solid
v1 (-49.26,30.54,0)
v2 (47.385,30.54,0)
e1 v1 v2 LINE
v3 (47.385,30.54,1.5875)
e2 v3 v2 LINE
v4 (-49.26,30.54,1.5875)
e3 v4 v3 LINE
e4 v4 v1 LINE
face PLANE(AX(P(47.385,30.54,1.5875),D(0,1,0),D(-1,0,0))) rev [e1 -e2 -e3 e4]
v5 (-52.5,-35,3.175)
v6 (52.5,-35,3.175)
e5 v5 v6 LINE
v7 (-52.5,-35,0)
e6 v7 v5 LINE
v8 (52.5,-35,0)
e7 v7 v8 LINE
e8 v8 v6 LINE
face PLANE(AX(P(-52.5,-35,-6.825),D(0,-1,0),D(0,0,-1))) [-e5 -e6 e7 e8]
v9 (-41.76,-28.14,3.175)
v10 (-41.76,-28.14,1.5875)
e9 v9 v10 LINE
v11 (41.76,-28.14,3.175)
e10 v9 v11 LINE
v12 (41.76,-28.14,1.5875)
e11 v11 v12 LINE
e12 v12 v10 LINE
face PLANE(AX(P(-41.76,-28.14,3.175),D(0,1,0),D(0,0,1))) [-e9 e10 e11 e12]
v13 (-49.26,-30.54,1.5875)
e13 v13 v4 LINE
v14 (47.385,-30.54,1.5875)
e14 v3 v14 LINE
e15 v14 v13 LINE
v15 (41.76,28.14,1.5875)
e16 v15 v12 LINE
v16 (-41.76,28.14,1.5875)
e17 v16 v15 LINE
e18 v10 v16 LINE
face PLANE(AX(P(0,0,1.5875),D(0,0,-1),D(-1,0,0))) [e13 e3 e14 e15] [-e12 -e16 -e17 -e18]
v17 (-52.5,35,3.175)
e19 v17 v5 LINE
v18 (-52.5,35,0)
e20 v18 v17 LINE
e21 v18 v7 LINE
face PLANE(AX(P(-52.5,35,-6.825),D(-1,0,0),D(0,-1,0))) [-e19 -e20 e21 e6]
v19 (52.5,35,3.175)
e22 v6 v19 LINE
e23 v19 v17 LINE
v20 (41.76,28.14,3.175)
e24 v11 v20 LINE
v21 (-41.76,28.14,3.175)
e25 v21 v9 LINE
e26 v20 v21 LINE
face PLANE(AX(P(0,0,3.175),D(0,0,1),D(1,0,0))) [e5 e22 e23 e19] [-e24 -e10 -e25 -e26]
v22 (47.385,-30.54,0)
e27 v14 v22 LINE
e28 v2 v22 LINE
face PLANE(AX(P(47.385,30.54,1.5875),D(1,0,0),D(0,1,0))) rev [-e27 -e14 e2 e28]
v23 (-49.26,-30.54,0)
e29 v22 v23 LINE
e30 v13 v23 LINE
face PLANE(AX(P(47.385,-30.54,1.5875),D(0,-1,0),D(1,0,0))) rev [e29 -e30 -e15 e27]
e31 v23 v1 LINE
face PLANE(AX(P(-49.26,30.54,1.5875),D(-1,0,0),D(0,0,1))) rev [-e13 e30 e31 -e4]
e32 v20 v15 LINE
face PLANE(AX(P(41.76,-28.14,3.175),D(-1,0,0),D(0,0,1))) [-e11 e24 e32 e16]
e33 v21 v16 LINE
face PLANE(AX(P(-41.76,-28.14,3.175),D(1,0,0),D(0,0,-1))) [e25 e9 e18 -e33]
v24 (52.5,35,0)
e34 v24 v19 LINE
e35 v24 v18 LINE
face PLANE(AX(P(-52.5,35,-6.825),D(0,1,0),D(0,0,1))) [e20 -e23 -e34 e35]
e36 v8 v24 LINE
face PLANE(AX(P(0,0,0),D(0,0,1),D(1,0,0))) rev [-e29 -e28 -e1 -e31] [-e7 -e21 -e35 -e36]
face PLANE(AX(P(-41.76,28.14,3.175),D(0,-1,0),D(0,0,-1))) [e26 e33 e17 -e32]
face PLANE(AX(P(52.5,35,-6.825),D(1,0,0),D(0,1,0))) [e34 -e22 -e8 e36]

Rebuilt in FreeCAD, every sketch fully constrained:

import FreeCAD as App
import Part
import Sketcher
from FreeCAD import Vector

doc = App.newDocument("Part")
body = doc.addObject("PartDesign::Body", "Body")

# Sketch on XY plane
sketch1 = body.newObject("Sketcher::SketchObject", "Sketch")
sketch1.AttachmentSupport = (doc.getObject("XY_Plane"), [""])
sketch1.MapMode = "FlatFace"
sketch1.addGeometry([
    Part.LineSegment(Vector(-57, 43, 0), Vector(-57, -68, 0)),  # 0
    Part.LineSegment(Vector(-57, -68, 0), Vector(57, -68, 0)),  # 1
    Part.LineSegment(Vector(57, -68, 0), Vector(57, 43, 0)),  # 2
    Part.LineSegment(Vector(57, 43, 0), Vector(-57, 43, 0)),  # 3
    Part.Circle(Vector(-42, -53, 0), Vector(0, 0, 1), 8),  # 4
    Part.LineSegment(Vector(-20, -56, 0), Vector(-26, -56, 0)),  # 5
    Part.LineSegment(Vector(-26, -56, 0), Vector(-26, -50, 0)),  # 6
    Part.LineSegment(Vector(-26, -50, 0), Vector(-20, -50, 0)),  # 7
    Part.LineSegment(Vector(-20, -50, 0), Vector(-20, -56, 0)),  # 8
    Part.LineSegment(Vector(-4, -56, 0), Vector(-10, -56, 0)),  # 9
    Part.LineSegment(Vector(-10, -56, 0), Vector(-10, -50, 0)),  # 10
    Part.LineSegment(Vector(-10, -50, 0), Vector(-4, -50, 0)),  # 11
    Part.LineSegment(Vector(-4, -50, 0), Vector(-4, -56, 0)),  # 12
    Part.LineSegment(Vector(10, -56, 0), Vector(4, -56, 0)),  # 13
    Part.LineSegment(Vector(4, -56, 0), Vector(4, -50, 0)),  # 14
    Part.LineSegment(Vector(4, -50, 0), Vector(10, -50, 0)),  # 15
    Part.LineSegment(Vector(10, -50, 0), Vector(10, -56, 0)),  # 16
    Part.LineSegment(Vector(26, -56, 0), Vector(20, -56, 0)),  # 17
    Part.LineSegment(Vector(20, -56, 0), Vector(20, -50, 0)),  # 18
    Part.LineSegment(Vector(20, -50, 0), Vector(26, -50, 0)),  # 19
    Part.LineSegment(Vector(26, -50, 0), Vector(26, -56, 0)),  # 20
    Part.Circle(Vector(42, -53, 0), Vector(0, 0, 1), 8),  # 21
    Part.LineSegment(Vector(42, -28, 0), Vector(-42, -28, 0)),  # 22
    Part.LineSegment(Vector(-42, -28, 0), Vector(-42, 28, 0)),  # 23
    Part.LineSegment(Vector(-42, 28, 0), Vector(42, 28, 0)),  # 24
    Part.LineSegment(Vector(42, 28, 0), Vector(42, -28, 0)),  # 25
], False)
sketch1.addConstraint([
    Sketcher.Constraint("Coincident", 0, 2, 1, 1),
    Sketcher.Constraint("Coincident", 1, 2, 2, 1),
    Sketcher.Constraint("Coincident", 2, 2, 3, 1),
    Sketcher.Constraint("Coincident", 3, 2, 0, 1),
    Sketcher.Constraint("Coincident", 5, 2, 6, 1),
    Sketcher.Constraint("Coincident", 6, 2, 7, 1),
    Sketcher.Constraint("Coincident", 7, 2, 8, 1),
    Sketcher.Constraint("Coincident", 8, 2, 5, 1),
    Sketcher.Constraint("Coincident", 9, 2, 10, 1),
    Sketcher.Constraint("Coincident", 10, 2, 11, 1),
    Sketcher.Constraint("Coincident", 11, 2, 12, 1),
    Sketcher.Constraint("Coincident", 12, 2, 9, 1),
    Sketcher.Constraint("Coincident", 13, 2, 14, 1),
    Sketcher.Constraint("Coincident", 14, 2, 15, 1),
    Sketcher.Constraint("Coincident", 15, 2, 16, 1),
    Sketcher.Constraint("Coincident", 16, 2, 13, 1),
    Sketcher.Constraint("Coincident", 17, 2, 18, 1),
    Sketcher.Constraint("Coincident", 18, 2, 19, 1),
    Sketcher.Constraint("Coincident", 19, 2, 20, 1),
    Sketcher.Constraint("Coincident", 20, 2, 17, 1),
    Sketcher.Constraint("Coincident", 22, 2, 23, 1),
    Sketcher.Constraint("Coincident", 23, 2, 24, 1),
    Sketcher.Constraint("Coincident", 24, 2, 25, 1),
    Sketcher.Constraint("Coincident", 25, 2, 22, 1),
    Sketcher.Constraint("Vertical", 0),
    Sketcher.Constraint("Horizontal", 1),
    Sketcher.Constraint("Vertical", 2),
    Sketcher.Constraint("Horizontal", 3),
    Sketcher.Constraint("Horizontal", 5),
    Sketcher.Constraint("Vertical", 6),
    Sketcher.Constraint("Horizontal", 7),
    Sketcher.Constraint("Vertical", 8),
    Sketcher.Constraint("Horizontal", 9),
    Sketcher.Constraint("Vertical", 10),
    Sketcher.Constraint("Horizontal", 11),
    Sketcher.Constraint("Vertical", 12),
    Sketcher.Constraint("Horizontal", 13),
    Sketcher.Constraint("Vertical", 14),
    Sketcher.Constraint("Horizontal", 15),
    Sketcher.Constraint("Vertical", 16),
    Sketcher.Constraint("Horizontal", 17),
    Sketcher.Constraint("Vertical", 18),
    Sketcher.Constraint("Horizontal", 19),
    Sketcher.Constraint("Vertical", 20),
    Sketcher.Constraint("Horizontal", 22),
    Sketcher.Constraint("Vertical", 23),
    Sketcher.Constraint("Horizontal", 24),
    Sketcher.Constraint("Vertical", 25),
    Sketcher.Constraint("Equal", 4, 21),
    Sketcher.Constraint("Symmetric", 22, 2, 24, 2, -1, 1),
    Sketcher.Constraint("Symmetric", 4, 3, 21, 3, -2),
    Sketcher.Constraint("Symmetric", 12, 2, 13, 2, -2),
    Sketcher.Constraint("Symmetric", 10, 2, 15, 2, -2),
    Sketcher.Constraint("Symmetric", 8, 2, 17, 2, -2),
    Sketcher.Constraint("Symmetric", 6, 2, 19, 2, -2),
    Sketcher.Constraint("Horizontal", 8, 2, 9, 2),
    Sketcher.Constraint("Horizontal", 7, 2, 10, 2),
    Sketcher.Constraint("Vertical", 4, 3, 22, 2),
    Sketcher.Constraint("Equal", 7, 9),
    Sketcher.Constraint("Diameter", 4, 17.0),
    Sketcher.Constraint("DistanceX", 5, 2, 5, 1, 6.0),
    Sketcher.Constraint("DistanceY", 6, 1, 6, 2, 5.8),
    Sketcher.Constraint("DistanceX", 0, 2, 4, 3, 15.0),
    Sketcher.Constraint("DistanceY", 0, 2, 4, 3, 15.0),
    Sketcher.Constraint("DistanceX", 21, 3, 1, 2, 15.0),
    Sketcher.Constraint("DistanceX", 8, 2, 9, 2, 9.0),
    Sketcher.Constraint("DistanceX", 12, 2, 13, 2, 9.0),
    Sketcher.Constraint("DistanceY", 4, 3, 22, 2, 25.0),
    Sketcher.Constraint("DistanceY", 23, 2, 3, 2, 15.0),
    Sketcher.Constraint("DistanceX", 1, 1, 1, 2, 113.52),
    Sketcher.Constraint("DistanceY", 0, 2, 0, 1, 111.28),
    Sketcher.Constraint("DistanceY", 5, 2, 4, 3, 2.9),
])
pad1 = body.newObject("PartDesign::Pad", "Pad")
pad1.Profile = sketch1
pad1.Length = 3.175

# Sketch on XY plane
sketch2 = body.newObject("Sketcher::SketchObject", "Sketch001")
sketch2.AttachmentSupport = (doc.getObject("XY_Plane"), [""])
sketch2.MapMode = "FlatFace"
sketch2.addGeometry([
    Part.LineSegment(Vector(47, 31, 0), Vector(47, -31, 0)),  # 0
    Part.LineSegment(Vector(47, -31, 0), Vector(-49, -31, 0)),  # 1
    Part.LineSegment(Vector(-49, -31, 0), Vector(-49, 31, 0)),  # 2
    Part.LineSegment(Vector(-49, 31, 0), Vector(47, 31, 0)),  # 3
    Part.LineSegment(Vector(-42, -28, 0), Vector(42, -28, 0)),  # 4
    Part.LineSegment(Vector(42, -28, 0), Vector(42, 28, 0)),  # 5
    Part.LineSegment(Vector(42, 28, 0), Vector(-42, 28, 0)),  # 6
    Part.LineSegment(Vector(-42, 28, 0), Vector(-42, -28, 0)),  # 7
], False)
sketch2.addConstraint([
    Sketcher.Constraint("Coincident", 0, 2, 1, 1),
    Sketcher.Constraint("Coincident", 1, 2, 2, 1),
    Sketcher.Constraint("Coincident", 2, 2, 3, 1),
    Sketcher.Constraint("Coincident", 3, 2, 0, 1),
    Sketcher.Constraint("Coincident", 4, 2, 5, 1),
    Sketcher.Constraint("Coincident", 5, 2, 6, 1),
    Sketcher.Constraint("Coincident", 6, 2, 7, 1),
    Sketcher.Constraint("Coincident", 7, 2, 4, 1),
    Sketcher.Constraint("Vertical", 0),
    Sketcher.Constraint("Horizontal", 1),
    Sketcher.Constraint("Vertical", 2),
    Sketcher.Constraint("Horizontal", 3),
    Sketcher.Constraint("Horizontal", 4),
    Sketcher.Constraint("Vertical", 5),
    Sketcher.Constraint("Horizontal", 6),
    Sketcher.Constraint("Vertical", 7),
    Sketcher.Constraint("Symmetric", 4, 2, 6, 2, -1, 1),
    Sketcher.Constraint("DistanceX", 4, 1, 4, 2, 83.52),
    Sketcher.Constraint("DistanceY", 0, 2, 0, 1, 61.08),
    Sketcher.Constraint("DistanceY", 5, 1, 5, 2, 56.28),
    Sketcher.Constraint("DistanceY", 0, 2, 4, 2, 2.4),
    Sketcher.Constraint("DistanceX", 2, 2, 6, 2, 7.5),
    Sketcher.Constraint("DistanceX", 1, 2, 1, 1, 96.645),
])
pocket1 = body.newObject("PartDesign::Pocket", "Pocket")
pocket1.Profile = sketch2
pocket1.Length = 1.5875
pocket1.Reversed = True

# Sketch on XY plane
sketch3 = body.newObject("Sketcher::SketchObject", "Sketch002")
sketch3.AttachmentSupport = (doc.getObject("XY_Plane"), [""])
sketch3.MapMode = "FlatFace"
sketch3.AttachmentOffset = App.Placement(Vector(0, 0, 3.175), App.Rotation())
sketch3.addGeometry([
    Part.LineSegment(Vector(-57, 43, 0), Vector(-57, -68, 0)),  # 0
    Part.LineSegment(Vector(-57, -68, 0), Vector(57, -68, 0)),  # 1
    Part.LineSegment(Vector(57, -68, 0), Vector(57, 43, 0)),  # 2
    Part.LineSegment(Vector(57, 43, 0), Vector(-57, 43, 0)),  # 3
    Part.LineSegment(Vector(52, -35, 0), Vector(-52, -35, 0)),  # 4
    Part.LineSegment(Vector(-52, -35, 0), Vector(-52, 35, 0)),  # 5
    Part.LineSegment(Vector(-52, 35, 0), Vector(52, 35, 0)),  # 6
    Part.LineSegment(Vector(52, 35, 0), Vector(52, -35, 0)),  # 7
], False)
sketch3.addConstraint([
    Sketcher.Constraint("Coincident", 0, 2, 1, 1),
    Sketcher.Constraint("Coincident", 1, 2, 2, 1),
    Sketcher.Constraint("Coincident", 2, 2, 3, 1),
    Sketcher.Constraint("Coincident", 3, 2, 0, 1),
    Sketcher.Constraint("Coincident", 4, 2, 5, 1),
    Sketcher.Constraint("Coincident", 5, 2, 6, 1),
    Sketcher.Constraint("Coincident", 6, 2, 7, 1),
    Sketcher.Constraint("Coincident", 7, 2, 4, 1),
    Sketcher.Constraint("Vertical", 0),
    Sketcher.Constraint("Horizontal", 1),
    Sketcher.Constraint("Vertical", 2),
    Sketcher.Constraint("Horizontal", 3),
    Sketcher.Constraint("Horizontal", 4),
    Sketcher.Constraint("Vertical", 5),
    Sketcher.Constraint("Horizontal", 6),
    Sketcher.Constraint("Vertical", 7),
    Sketcher.Constraint("Symmetric", 4, 2, 6, 2, -1, 1),
    Sketcher.Constraint("DistanceX", 4, 2, 4, 1, 105.0),
    Sketcher.Constraint("DistanceY", 5, 1, 5, 2, 70.0),
    Sketcher.Constraint("DistanceX", 1, 1, 1, 2, 113.52),
    Sketcher.Constraint("DistanceY", 0, 2, 0, 1, 111.28),
    Sketcher.Constraint("DistanceX", 0, 2, -1, 1, 56.76),
    Sketcher.Constraint("DistanceY", 0, 2, -1, 1, 68.14),
])
pocket2 = body.newObject("PartDesign::Pocket", "Pocket001")
pocket2.Profile = sketch3
pocket2.Length = 10

doc.recompute()
